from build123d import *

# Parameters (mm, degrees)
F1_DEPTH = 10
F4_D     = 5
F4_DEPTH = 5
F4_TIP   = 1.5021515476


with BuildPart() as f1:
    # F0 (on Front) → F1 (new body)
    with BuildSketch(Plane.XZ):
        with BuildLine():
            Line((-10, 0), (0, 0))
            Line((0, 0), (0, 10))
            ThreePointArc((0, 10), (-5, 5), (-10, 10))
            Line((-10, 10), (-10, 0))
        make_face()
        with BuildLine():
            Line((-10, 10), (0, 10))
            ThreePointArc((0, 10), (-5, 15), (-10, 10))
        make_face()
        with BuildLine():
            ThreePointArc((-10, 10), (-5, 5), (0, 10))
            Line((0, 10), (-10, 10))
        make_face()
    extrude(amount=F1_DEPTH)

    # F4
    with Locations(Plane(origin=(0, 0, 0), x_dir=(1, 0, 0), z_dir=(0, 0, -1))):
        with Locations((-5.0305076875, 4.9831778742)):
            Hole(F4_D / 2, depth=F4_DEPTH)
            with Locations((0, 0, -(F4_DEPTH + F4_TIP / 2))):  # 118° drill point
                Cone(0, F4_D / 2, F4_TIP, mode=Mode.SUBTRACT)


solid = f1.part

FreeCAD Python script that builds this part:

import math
import FreeCAD as App
import Part
import Sketcher
from FreeCAD import Vector

doc = App.newDocument("Part")
body = doc.addObject("PartDesign::Body", "Body")

# Sketch on XZ plane
sketch1 = doc.addObject("Sketcher::SketchObject", "Sketch")
body.addObject(sketch1)
sketch1.AttachmentSupport = (doc.XZ_Plane, [""])
sketch1.MapMode = "FlatFace"
sketch1.addGeometry(Part.LineSegment(Vector(-10, 0, 0), Vector(0, 0, 0)), False)
sketch1.addGeometry(Part.LineSegment(Vector(0, 0, 0), Vector(0, 10, 0)), False)
sketch1.addGeometry(Part.ArcOfCircle(Part.Circle(Vector(-5, 10, 0), Vector(0, 0, 1), 5), math.radians(0), math.radians(180)), False)
sketch1.addGeometry(Part.LineSegment(Vector(-10, 10, 0), Vector(-10, 0, 0)), False)
sketch1.addConstraint(Sketcher.Constraint("Coincident", 0, 2, 1, 1))
sketch1.addConstraint(Sketcher.Constraint("Tangent", 1, 2, 2, 1))
sketch1.addConstraint(Sketcher.Constraint("Tangent", 2, 2, 3, 1))
sketch1.addConstraint(Sketcher.Constraint("Coincident", 3, 2, 0, 1))
sketch1.addConstraint(Sketcher.Constraint("Horizontal", 0))
sketch1.addConstraint(Sketcher.Constraint("Vertical", 1))
sketch1.addConstraint(Sketcher.Constraint("Vertical", 3))
sketch1.addConstraint(Sketcher.Constraint("Coincident", 0, 2, -1, 1))
sketch1.addConstraint(Sketcher.Constraint("Equal", 0, 1))
sketch1.addConstraint(Sketcher.Constraint("Radius", 2, 5.0))
pad1 = doc.addObject("PartDesign::Pad", "Pad")
body.addObject(pad1)
pad1.Profile = sketch1
pad1.Length = 10

# Sketch on XY plane
sketch2 = doc.addObject("Sketcher::SketchObject", "Sketch001")
body.addObject(sketch2)
sketch2.AttachmentSupport = (doc.XY_Plane, [""])
sketch2.MapMode = "FlatFace"
sketch2.addGeometry(Part.Circle(Vector(-5, -5, 0), Vector(0, 0, 1), 2.5), False)
sketch2.addConstraint(Sketcher.Constraint("Diameter", 0, 5.0))
sketch2.addConstraint(Sketcher.Constraint("DistanceX", 0, 3, -1, 1, 5.030508))
sketch2.addConstraint(Sketcher.Constraint("DistanceY", 0, 3, -1, 1, 4.983178))
doc.recompute()
hole = doc.addObject("PartDesign::Hole", "Hole")
body.addObject(hole)
hole.Profile = sketch2
hole.ThreadType = "None"
hole.Diameter = 5
hole.DepthType = "Dimension"
hole.Depth = 5
hole.DrillPoint = "Angled"
hole.DrillPointAngle = 118
hole.Reversed = True

doc.recompute()
